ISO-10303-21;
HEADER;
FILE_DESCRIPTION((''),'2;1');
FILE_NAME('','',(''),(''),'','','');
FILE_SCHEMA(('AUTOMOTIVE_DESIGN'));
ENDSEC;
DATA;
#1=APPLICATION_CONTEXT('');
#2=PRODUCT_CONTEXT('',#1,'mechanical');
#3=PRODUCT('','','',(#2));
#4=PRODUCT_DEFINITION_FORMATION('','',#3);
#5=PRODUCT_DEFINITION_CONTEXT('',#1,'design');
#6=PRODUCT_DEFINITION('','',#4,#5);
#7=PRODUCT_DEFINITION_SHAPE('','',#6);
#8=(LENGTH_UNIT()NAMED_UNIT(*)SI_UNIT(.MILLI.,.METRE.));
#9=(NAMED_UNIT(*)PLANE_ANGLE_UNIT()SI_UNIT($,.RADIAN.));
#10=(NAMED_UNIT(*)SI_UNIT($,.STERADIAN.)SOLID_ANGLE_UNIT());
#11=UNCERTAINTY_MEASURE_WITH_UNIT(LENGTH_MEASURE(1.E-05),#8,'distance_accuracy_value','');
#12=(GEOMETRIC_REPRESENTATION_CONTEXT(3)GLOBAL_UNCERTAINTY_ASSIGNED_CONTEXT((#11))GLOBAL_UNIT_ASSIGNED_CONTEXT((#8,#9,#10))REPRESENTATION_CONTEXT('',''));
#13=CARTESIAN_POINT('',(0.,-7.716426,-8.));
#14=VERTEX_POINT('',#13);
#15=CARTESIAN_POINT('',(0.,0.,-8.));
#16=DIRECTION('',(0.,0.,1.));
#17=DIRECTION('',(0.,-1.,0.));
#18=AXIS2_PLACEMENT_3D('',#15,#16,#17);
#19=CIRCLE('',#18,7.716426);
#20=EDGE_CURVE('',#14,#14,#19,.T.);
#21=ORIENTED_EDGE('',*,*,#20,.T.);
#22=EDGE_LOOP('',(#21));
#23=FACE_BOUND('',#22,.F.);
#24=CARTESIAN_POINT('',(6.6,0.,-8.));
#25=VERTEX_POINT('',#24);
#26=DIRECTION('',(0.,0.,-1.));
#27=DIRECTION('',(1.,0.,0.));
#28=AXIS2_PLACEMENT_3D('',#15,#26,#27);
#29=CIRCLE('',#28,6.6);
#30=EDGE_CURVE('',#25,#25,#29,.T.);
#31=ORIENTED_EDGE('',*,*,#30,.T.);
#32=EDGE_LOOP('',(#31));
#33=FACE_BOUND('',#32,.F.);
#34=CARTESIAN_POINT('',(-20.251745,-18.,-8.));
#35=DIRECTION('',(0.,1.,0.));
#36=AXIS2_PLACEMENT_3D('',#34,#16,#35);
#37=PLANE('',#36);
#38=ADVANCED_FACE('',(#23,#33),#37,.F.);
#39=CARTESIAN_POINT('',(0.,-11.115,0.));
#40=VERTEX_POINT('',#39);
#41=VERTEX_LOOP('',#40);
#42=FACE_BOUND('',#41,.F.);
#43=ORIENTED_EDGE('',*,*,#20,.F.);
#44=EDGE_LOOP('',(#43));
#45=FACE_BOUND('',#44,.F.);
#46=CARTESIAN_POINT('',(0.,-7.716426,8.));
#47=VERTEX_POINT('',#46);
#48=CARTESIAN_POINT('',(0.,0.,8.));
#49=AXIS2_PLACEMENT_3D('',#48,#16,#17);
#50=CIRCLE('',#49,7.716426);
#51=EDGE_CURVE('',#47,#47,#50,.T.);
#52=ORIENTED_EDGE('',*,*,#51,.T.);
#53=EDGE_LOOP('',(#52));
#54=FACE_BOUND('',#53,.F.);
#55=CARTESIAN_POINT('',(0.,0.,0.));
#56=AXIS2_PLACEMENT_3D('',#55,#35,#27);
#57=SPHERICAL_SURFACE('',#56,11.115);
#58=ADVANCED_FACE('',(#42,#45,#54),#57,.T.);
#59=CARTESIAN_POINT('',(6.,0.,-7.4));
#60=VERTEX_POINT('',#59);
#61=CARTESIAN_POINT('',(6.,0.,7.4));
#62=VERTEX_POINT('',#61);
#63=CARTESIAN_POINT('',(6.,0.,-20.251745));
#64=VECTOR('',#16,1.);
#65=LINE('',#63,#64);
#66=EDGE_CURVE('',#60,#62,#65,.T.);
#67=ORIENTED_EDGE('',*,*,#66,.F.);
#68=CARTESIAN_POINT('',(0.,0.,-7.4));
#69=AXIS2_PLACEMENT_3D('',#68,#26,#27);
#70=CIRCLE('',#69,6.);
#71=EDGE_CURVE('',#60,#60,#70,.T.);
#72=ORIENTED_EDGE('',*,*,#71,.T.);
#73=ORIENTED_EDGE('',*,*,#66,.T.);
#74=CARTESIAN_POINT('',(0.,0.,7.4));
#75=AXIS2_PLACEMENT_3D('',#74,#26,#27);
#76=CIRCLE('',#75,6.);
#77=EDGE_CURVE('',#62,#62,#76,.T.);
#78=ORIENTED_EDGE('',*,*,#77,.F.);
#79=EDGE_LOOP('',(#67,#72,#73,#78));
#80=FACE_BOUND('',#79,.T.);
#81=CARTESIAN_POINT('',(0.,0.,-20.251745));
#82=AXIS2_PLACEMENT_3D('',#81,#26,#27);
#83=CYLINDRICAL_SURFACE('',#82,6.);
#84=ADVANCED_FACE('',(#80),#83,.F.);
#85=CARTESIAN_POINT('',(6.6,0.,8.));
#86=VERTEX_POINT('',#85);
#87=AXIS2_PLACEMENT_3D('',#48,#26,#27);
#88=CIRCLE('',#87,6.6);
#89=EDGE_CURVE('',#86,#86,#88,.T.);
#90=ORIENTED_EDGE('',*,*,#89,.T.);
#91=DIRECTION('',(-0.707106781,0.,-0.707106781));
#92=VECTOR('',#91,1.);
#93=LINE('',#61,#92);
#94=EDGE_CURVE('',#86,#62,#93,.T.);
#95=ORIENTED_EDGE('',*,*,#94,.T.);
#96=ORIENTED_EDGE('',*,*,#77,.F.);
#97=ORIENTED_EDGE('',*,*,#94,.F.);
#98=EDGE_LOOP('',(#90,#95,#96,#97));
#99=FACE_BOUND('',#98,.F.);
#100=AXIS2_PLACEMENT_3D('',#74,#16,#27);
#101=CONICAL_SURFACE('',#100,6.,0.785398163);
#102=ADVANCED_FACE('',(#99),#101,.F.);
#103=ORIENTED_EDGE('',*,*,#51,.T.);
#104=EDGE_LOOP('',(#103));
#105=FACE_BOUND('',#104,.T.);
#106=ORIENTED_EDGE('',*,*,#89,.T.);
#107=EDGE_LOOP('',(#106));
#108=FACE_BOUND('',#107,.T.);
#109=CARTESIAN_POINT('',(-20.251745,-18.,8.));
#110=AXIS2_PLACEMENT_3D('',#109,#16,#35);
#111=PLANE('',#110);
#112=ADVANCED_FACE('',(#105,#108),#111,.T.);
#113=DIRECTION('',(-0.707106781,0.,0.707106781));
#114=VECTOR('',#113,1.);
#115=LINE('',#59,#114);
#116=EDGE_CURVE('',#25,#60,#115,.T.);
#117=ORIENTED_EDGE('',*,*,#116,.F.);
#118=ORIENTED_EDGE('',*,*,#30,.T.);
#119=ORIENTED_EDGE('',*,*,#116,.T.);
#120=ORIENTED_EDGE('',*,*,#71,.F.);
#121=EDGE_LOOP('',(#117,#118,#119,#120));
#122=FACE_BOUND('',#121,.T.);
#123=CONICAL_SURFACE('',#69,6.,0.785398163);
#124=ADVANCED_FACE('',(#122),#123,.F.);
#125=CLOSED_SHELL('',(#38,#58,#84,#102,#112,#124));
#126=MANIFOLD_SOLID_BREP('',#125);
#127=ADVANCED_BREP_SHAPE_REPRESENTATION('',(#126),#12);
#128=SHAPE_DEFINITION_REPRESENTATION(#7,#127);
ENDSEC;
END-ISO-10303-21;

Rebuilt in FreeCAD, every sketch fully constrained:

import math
import FreeCAD as App
import Part
import Sketcher

V = App.Vector
Q = App.Units.Quantity


def edges_at(feature, points):
    """Names of the edges that pass closest to the given points."""
    edges = feature.Shape.Edges
    near = lambda p: min(range(len(edges)), key=lambda i: edges[i].distToShape(Part.Vertex(*p))[0])
    return sorted({f"Edge{near(p) + 1}" for p in points})

doc = App.newDocument("Part")
body = doc.addObject("PartDesign::Body", "Body")

sketch1 = doc.addObject("Sketcher::SketchObject", "Sketch")
body.addObject(sketch1)
sketch1.AttachmentSupport = (doc.XY_Plane, [""])
sketch1.MapMode = "FlatFace"
sketch1.addGeometry(Part.LineSegment(V(0, 11.115, 0), V(0, -11.115, 0)), False)
sketch1.addGeometry(Part.ArcOfCircle(Part.Circle(V(0, 0, 0), V(0, 0, 1), 11.115), math.radians(-90), math.radians(90)), False)
sketch1.addConstraint(Sketcher.Constraint("Coincident", 0, 1, 1, 2))
sketch1.addConstraint(Sketcher.Constraint("Coincident", 1, 1, 0, 2))
sketch1.addConstraint(Sketcher.Constraint("Vertical", 0))
sketch1.addConstraint(Sketcher.Constraint("Coincident", 1, 3, -1, 1))
sketch1.addConstraint(Sketcher.Constraint("PointOnObject", 0, 1, -2))
sketch1.addConstraint(Sketcher.Constraint("Radius", 1, Q("11.115 mm")))
revolution = doc.addObject("PartDesign::Revolution", "Revolution")
body.addObject(revolution)
revolution.Profile = sketch1
revolution.ReferenceAxis = (sketch1, ["V_Axis"])
revolution.Angle = 360

sketch2 = doc.addObject("Sketcher::SketchObject", "Sketch001")
body.addObject(sketch2)
sketch2.AttachmentSupport = (doc.YZ_Plane, [""])
sketch2.MapMode = "FlatFace"
sketch2.addGeometry(Part.LineSegment(V(18, 15, 0), V(-18, 15, 0)), False)
sketch2.addGeometry(Part.LineSegment(V(-18, 15, 0), V(-18, 8, 0)), False)
sketch2.addGeometry(Part.LineSegment(V(-18, 8, 0), V(18, 8, 0)), False)
sketch2.addGeometry(Part.LineSegment(V(18, 8, 0), V(18, 15, 0)), False)
sketch2.addGeometry(Part.LineSegment(V(18, -8, 0), V(-18, -8, 0)), False)
sketch2.addGeometry(Part.LineSegment(V(-18, -8, 0), V(-18, -15, 0)), False)
sketch2.addGeometry(Part.LineSegment(V(-18, -15, 0), V(18, -15, 0)), False)
sketch2.addGeometry(Part.LineSegment(V(18, -15, 0), V(18, -8, 0)), False)
sketch2.addConstraint(Sketcher.Constraint("Coincident", 0, 2, 1, 1))
sketch2.addConstraint(Sketcher.Constraint("Coincident", 1, 2, 2, 1))
sketch2.addConstraint(Sketcher.Constraint("Coincident", 2, 2, 3, 1))
sketch2.addConstraint(Sketcher.Constraint("Coincident", 3, 2, 0, 1))
sketch2.addConstraint(Sketcher.Constraint("Coincident", 4, 2, 5, 1))
sketch2.addConstraint(Sketcher.Constraint("Coincident", 5, 2, 6, 1))
sketch2.addConstraint(Sketcher.Constraint("Coincident", 6, 2, 7, 1))
sketch2.addConstraint(Sketcher.Constraint("Coincident", 7, 2, 4, 1))
sketch2.addConstraint(Sketcher.Constraint("Horizontal", 0))
sketch2.addConstraint(Sketcher.Constraint("Vertical", 1))
sketch2.addConstraint(Sketcher.Constraint("Horizontal", 2))
sketch2.addConstraint(Sketcher.Constraint("Vertical", 3))
sketch2.addConstraint(Sketcher.Constraint("Horizontal", 4))
sketch2.addConstraint(Sketcher.Constraint("Vertical", 5))
sketch2.addConstraint(Sketcher.Constraint("Horizontal", 6))
sketch2.addConstraint(Sketcher.Constraint("Vertical", 7))
sketch2.addConstraint(Sketcher.Constraint("Symmetric", 2, 2, 4, 2, -1, 1))
sketch2.addConstraint(Sketcher.Constraint("Symmetric", 0, 2, 6, 2, -1, 1))
sketch2.addConstraint(Sketcher.Constraint("Vertical", 1, 2, 4, 2))
sketch2.addConstraint(Sketcher.Constraint("DistanceX", 0, 2, 0, 1, Q("36 mm")))
sketch2.addConstraint(Sketcher.Constraint("DistanceY", 1, 2, 1, 1, Q("7 mm")))
sketch2.addConstraint(Sketcher.Constraint("DistanceY", -1, 1, 0, 2, Q("15 mm")))
pocket1 = doc.addObject("PartDesign::Pocket", "Pocket")
body.addObject(pocket1)
pocket1.Profile = sketch2
pocket1.Type = "ThroughAll"
pocket1.Midplane = True

sketch3 = doc.addObject("Sketcher::SketchObject", "Sketch002")
body.addObject(sketch3)
sketch3.AttachmentSupport = (doc.XY_Plane, [""])
sketch3.MapMode = "FlatFace"
sketch3.addGeometry(Part.Circle(V(0, 0, 0), V(0, 0, 1), 6), False)
sketch3.addConstraint(Sketcher.Constraint("Coincident", 0, 3, -1, 1))
sketch3.addConstraint(Sketcher.Constraint("Diameter", 0, Q("12 mm")))
pocket2 = doc.addObject("PartDesign::Pocket", "Pocket001")
body.addObject(pocket2)
pocket2.Profile = sketch3
pocket2.Type = "ThroughAll"
pocket2.Midplane = True
doc.recompute()

chamfer = doc.addObject("PartDesign::Chamfer", "Chamfer")
body.addObject(chamfer)
chamfer.Base = (pocket2, edges_at(pocket2, [(-6, 0, -8), (-6, 0, 8)]))
chamfer.Size = 0.6

doc.recompute()
